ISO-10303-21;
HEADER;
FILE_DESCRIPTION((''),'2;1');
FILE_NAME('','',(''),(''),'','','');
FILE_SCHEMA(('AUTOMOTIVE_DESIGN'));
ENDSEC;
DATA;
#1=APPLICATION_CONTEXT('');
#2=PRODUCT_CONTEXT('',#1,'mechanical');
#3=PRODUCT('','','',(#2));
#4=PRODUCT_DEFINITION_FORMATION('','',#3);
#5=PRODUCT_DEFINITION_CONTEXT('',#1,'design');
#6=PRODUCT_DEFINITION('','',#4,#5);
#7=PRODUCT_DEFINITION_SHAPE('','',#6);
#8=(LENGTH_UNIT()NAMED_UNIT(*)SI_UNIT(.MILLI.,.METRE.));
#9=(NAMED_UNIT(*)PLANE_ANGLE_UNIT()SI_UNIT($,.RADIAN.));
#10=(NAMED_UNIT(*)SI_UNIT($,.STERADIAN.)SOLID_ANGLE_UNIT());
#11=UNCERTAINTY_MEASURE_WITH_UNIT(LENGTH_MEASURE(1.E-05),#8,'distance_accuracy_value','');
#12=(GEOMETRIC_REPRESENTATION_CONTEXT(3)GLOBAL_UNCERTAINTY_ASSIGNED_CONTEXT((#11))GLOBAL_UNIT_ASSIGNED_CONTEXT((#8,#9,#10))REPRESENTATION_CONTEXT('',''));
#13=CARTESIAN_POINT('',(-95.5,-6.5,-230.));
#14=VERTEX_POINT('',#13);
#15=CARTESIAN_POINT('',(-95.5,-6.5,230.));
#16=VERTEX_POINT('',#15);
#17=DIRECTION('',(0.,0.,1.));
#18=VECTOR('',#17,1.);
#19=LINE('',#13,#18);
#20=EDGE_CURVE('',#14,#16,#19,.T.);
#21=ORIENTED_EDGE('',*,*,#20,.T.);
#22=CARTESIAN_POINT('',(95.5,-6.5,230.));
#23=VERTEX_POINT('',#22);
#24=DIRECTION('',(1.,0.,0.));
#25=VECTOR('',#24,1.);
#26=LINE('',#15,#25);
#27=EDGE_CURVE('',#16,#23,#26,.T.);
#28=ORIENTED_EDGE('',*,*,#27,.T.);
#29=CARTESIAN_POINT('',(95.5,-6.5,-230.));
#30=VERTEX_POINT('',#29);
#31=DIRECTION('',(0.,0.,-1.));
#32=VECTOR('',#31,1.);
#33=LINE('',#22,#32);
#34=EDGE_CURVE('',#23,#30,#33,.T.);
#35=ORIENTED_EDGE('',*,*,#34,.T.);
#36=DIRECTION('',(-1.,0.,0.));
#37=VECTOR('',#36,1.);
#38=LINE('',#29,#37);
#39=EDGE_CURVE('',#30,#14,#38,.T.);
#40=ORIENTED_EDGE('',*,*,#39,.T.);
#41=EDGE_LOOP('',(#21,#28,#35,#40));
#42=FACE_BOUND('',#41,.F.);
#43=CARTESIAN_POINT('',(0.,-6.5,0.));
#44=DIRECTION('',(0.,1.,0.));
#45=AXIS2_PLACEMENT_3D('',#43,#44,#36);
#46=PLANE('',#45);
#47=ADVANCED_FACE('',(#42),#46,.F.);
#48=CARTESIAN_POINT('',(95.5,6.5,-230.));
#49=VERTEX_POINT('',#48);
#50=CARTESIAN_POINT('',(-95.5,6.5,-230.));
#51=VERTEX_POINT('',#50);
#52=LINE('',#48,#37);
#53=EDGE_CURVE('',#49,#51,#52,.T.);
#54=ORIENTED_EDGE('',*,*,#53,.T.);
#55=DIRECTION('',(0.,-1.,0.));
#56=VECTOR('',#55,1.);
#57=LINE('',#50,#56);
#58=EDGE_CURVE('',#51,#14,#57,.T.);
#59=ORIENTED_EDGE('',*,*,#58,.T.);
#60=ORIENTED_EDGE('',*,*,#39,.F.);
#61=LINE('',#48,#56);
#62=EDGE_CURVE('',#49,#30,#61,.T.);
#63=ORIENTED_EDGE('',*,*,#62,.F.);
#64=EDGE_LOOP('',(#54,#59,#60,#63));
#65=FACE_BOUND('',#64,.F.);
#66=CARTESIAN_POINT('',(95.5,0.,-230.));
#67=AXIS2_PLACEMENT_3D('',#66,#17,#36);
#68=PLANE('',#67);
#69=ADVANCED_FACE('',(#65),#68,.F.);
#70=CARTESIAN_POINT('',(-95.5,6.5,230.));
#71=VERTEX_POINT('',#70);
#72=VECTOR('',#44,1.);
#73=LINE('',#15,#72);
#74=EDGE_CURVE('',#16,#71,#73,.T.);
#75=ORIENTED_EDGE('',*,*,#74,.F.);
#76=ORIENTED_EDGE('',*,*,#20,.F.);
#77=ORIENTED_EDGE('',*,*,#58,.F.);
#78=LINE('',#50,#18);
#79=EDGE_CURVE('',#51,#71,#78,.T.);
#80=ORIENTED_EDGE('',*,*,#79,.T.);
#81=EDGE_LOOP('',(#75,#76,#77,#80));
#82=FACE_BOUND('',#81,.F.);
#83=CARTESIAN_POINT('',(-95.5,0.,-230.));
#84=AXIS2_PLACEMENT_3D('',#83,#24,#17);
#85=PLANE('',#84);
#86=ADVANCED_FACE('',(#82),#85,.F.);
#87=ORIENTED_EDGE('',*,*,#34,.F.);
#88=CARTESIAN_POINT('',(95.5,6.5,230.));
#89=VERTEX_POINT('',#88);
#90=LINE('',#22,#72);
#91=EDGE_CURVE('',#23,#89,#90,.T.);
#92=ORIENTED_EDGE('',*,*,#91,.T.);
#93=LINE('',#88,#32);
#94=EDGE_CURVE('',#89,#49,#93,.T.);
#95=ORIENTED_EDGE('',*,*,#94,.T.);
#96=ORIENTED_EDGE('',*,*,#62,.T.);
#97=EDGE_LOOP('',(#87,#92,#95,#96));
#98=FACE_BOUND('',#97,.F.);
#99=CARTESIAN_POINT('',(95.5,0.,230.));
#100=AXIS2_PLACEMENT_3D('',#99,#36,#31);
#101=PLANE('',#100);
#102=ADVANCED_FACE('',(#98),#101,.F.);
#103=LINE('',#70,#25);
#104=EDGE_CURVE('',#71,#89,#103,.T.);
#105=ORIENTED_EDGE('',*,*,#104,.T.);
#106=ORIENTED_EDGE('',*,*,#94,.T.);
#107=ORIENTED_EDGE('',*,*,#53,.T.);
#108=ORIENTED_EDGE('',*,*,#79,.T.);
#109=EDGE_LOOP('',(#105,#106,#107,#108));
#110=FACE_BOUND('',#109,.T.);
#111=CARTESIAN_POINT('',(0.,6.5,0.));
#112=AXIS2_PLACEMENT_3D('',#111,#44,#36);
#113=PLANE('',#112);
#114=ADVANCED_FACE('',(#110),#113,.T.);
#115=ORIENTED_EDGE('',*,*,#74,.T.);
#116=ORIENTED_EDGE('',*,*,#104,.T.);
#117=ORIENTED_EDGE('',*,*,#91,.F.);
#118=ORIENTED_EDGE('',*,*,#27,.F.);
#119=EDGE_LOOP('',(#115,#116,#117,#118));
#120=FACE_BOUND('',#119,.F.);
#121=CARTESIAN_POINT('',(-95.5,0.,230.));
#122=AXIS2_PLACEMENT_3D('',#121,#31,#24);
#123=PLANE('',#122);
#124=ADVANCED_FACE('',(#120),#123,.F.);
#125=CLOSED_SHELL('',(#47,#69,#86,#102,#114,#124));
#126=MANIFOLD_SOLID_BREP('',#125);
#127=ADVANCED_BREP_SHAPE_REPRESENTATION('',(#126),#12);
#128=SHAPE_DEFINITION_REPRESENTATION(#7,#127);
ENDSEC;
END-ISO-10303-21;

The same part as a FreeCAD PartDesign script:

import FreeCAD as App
import Part
import Sketcher
Q = App.Units.Quantity


def add_polygon(sketch, points):
    """Adds a closed chain of lines whose ends are joined by coincident constraints."""
    first, n = sketch.GeometryCount, len(points)
    for a, b in zip(points, points[1:] + points[:1]):
        sketch.addGeometry(Part.LineSegment(App.Vector(*a, 0), App.Vector(*b, 0)), False)
    for i in range(n):
        sketch.addConstraint(Sketcher.Constraint("Coincident", first + i, 2, first + (i + 1) % n, 1))

doc = App.newDocument("Part")
body = doc.addObject("PartDesign::Body", "Body")

# Sketch on XZ plane
sketch1 = doc.addObject("Sketcher::SketchObject", "Sketch")
body.addObject(sketch1)
sketch1.AttachmentSupport = (doc.XZ_Plane, [""])
sketch1.MapMode = "FlatFace"
add_polygon(sketch1, [(-96, -230), (-96, 230), (96, 230), (96, -230)])  # lines 0-3
sketch1.addConstraint([
    Sketcher.Constraint("Vertical", 0),
    Sketcher.Constraint("Horizontal", 1),
    Sketcher.Constraint("Vertical", 2),
    Sketcher.Constraint("Horizontal", 3),
    Sketcher.Constraint("Symmetric", 0, 2, 2, 2, -1, 1),
    Sketcher.Constraint("DistanceX", 1, 1, 1, 2, Q("191 mm")),
    Sketcher.Constraint("DistanceY", 0, 1, 0, 2, Q("460 mm")),
])
pad1 = doc.addObject("PartDesign::Pad", "Pad")
body.addObject(pad1)
pad1.Profile = sketch1
pad1.Length = 13
pad1.Midplane = True

doc.recompute()
